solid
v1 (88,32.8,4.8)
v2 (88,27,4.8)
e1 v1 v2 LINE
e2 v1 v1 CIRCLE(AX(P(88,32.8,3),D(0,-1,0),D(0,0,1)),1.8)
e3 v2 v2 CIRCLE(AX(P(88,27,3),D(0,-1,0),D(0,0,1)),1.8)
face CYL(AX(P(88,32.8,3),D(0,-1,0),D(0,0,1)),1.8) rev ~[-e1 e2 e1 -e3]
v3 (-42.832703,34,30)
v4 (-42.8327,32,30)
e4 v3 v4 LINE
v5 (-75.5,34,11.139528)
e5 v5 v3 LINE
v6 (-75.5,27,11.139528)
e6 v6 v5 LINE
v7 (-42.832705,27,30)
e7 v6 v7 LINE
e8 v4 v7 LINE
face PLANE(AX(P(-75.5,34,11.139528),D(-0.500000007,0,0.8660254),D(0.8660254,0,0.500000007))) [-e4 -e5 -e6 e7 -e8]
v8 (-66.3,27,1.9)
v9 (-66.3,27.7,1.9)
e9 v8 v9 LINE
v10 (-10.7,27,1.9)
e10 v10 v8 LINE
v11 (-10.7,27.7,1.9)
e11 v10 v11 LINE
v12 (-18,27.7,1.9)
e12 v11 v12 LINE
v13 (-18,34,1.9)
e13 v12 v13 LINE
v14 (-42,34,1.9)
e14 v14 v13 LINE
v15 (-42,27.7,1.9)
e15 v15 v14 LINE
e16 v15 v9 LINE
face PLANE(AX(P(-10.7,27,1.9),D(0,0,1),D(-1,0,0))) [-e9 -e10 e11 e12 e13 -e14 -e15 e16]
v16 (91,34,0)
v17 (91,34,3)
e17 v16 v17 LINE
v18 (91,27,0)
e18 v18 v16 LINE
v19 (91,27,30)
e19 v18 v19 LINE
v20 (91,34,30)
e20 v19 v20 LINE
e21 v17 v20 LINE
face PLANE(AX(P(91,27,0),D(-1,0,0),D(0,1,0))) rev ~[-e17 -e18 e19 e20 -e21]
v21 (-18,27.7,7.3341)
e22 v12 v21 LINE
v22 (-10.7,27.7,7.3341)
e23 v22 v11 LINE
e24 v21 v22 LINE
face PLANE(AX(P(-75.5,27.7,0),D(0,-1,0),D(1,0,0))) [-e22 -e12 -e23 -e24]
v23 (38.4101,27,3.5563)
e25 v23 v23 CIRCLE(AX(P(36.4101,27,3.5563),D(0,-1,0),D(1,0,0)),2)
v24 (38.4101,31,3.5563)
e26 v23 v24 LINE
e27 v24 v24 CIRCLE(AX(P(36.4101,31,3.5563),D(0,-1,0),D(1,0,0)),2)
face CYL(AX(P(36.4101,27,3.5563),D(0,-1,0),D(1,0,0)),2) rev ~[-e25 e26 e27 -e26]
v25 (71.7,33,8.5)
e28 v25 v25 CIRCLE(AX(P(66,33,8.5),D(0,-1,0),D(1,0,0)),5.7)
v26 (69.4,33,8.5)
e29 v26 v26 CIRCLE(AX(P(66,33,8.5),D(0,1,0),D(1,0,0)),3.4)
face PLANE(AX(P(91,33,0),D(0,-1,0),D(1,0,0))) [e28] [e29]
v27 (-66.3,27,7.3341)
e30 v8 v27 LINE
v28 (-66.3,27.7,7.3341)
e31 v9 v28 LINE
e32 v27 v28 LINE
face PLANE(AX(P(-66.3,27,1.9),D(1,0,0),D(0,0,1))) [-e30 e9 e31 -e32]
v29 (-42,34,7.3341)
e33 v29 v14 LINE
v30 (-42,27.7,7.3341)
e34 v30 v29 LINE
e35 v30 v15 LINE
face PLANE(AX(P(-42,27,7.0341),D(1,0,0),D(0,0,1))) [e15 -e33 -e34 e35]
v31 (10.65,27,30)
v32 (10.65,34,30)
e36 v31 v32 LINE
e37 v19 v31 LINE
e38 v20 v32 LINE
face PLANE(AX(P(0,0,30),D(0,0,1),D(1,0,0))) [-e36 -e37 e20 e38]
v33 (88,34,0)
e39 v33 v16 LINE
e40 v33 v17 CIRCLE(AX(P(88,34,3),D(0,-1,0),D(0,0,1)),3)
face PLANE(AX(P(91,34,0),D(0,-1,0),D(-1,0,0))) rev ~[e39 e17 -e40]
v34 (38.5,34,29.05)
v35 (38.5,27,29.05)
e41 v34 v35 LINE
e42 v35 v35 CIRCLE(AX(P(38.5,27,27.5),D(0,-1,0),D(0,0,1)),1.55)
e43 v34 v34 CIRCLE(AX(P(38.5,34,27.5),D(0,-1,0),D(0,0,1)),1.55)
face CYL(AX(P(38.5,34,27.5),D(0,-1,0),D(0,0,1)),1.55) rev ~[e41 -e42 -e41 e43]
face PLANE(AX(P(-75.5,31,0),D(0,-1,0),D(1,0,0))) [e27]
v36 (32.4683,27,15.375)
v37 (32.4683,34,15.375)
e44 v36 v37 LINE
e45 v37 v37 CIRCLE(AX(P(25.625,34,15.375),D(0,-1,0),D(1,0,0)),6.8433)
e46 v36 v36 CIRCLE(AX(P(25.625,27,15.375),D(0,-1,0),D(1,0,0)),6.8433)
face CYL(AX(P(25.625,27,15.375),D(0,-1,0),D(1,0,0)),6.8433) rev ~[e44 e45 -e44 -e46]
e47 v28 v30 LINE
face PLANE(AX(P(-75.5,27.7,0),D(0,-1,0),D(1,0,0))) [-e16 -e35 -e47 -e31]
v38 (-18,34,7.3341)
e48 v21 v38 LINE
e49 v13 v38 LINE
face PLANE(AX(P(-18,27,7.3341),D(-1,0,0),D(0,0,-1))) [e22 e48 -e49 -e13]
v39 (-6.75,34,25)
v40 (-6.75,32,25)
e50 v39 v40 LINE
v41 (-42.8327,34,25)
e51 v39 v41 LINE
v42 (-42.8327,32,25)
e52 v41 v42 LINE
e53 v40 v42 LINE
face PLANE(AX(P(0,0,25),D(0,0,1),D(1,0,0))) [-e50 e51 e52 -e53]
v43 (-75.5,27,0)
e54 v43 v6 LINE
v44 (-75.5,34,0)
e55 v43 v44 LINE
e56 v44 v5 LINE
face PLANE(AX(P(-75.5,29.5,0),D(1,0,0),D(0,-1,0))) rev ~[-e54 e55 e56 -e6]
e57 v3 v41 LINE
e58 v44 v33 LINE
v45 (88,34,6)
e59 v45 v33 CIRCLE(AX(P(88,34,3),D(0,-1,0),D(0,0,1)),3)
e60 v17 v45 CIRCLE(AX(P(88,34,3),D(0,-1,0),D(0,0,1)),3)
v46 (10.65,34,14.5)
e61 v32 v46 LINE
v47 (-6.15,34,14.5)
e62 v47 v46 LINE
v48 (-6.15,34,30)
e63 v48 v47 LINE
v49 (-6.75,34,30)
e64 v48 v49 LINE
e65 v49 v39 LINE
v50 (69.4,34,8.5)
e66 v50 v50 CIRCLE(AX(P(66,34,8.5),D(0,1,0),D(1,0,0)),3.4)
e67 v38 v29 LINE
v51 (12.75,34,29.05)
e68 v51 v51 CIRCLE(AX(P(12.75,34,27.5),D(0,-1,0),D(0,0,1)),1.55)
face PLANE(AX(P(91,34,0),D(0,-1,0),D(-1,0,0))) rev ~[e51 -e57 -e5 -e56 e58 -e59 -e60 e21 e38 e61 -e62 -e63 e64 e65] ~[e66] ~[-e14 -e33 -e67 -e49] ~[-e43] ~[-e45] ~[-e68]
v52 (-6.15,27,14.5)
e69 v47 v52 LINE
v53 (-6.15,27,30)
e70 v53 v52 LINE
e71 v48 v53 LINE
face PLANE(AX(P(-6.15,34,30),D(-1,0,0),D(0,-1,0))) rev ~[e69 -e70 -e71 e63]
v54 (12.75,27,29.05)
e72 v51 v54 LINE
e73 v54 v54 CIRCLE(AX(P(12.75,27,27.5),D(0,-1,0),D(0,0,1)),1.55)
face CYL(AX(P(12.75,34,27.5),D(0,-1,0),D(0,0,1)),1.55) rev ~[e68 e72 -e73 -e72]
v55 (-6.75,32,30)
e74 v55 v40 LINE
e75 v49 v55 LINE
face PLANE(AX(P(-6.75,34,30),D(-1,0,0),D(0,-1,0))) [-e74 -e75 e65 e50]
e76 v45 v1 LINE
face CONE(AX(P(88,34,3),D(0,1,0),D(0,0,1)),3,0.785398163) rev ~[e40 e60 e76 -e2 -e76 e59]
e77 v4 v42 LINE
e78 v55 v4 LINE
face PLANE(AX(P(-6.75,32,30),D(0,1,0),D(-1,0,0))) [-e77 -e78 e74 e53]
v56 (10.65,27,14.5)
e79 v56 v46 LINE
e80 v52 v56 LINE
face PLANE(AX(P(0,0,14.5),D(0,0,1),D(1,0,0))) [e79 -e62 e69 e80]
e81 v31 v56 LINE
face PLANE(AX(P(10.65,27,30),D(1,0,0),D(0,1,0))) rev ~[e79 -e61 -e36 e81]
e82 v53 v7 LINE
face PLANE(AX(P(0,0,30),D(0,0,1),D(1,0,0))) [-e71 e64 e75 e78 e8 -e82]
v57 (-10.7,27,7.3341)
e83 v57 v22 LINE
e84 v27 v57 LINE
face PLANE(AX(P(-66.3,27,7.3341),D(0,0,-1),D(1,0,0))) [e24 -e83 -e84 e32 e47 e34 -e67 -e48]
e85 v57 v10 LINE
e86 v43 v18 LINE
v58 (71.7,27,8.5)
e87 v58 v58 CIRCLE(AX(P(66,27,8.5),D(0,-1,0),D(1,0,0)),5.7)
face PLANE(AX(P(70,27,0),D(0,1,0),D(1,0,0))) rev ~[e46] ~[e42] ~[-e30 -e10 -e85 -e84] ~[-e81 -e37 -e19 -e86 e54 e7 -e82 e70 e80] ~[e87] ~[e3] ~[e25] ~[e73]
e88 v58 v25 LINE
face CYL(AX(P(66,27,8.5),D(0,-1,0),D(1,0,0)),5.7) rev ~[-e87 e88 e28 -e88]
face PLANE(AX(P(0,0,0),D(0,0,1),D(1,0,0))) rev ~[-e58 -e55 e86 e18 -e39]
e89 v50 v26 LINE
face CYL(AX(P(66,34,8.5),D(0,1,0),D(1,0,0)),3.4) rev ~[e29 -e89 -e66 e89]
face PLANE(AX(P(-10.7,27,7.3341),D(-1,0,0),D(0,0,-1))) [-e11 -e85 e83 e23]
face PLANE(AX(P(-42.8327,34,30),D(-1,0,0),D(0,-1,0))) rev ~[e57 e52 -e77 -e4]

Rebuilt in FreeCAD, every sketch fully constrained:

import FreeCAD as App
import Part
import Sketcher
Q = App.Units.Quantity

doc = App.newDocument("Part")
body = doc.addObject("PartDesign::Body", "Body")

# Sketch on XY plane
sketch1 = doc.addObject("Sketcher::SketchObject", "Sketch")
body.addObject(sketch1)
sketch1.AttachmentSupport = (doc.XY_Plane, [""])
sketch1.MapMode = "FlatFace"
sketch1.addGeometry([
    Part.LineSegment(App.Vector(-75.5, 27, 0), App.Vector(91, 27, 0)),
    Part.LineSegment(App.Vector(91, 27, 0), App.Vector(91, 34, 0)),
    Part.LineSegment(App.Vector(91, 34, 0), App.Vector(-75.5, 34, 0)),
    Part.LineSegment(App.Vector(-75.5, 34, 0), App.Vector(-75.5, 27, 0)),
], False)
sketch1.addConstraint([
    Sketcher.Constraint("Coincident", 0, 2, 1, 1),
    Sketcher.Constraint("Coincident", 1, 2, 2, 1),
    Sketcher.Constraint("Coincident", 2, 2, 3, 1),
    Sketcher.Constraint("Coincident", 3, 2, 0, 1),
    Sketcher.Constraint("Horizontal", 0),
    Sketcher.Constraint("Vertical", 1),
    Sketcher.Constraint("Horizontal", 2),
    Sketcher.Constraint("Vertical", 3),
    Sketcher.Constraint("DistanceY", 1, 1, 1, 2, Q("7 mm")),
    Sketcher.Constraint("DistanceX", 0, 1, 0, 2, Q("166.5 mm")),
    Sketcher.Constraint("DistanceX", -1, 1, 0, 2, Q("91 mm")),
    Sketcher.Constraint("DistanceY", -1, 1, 0, 2, Q("27 mm")),
])
pad1 = doc.addObject("PartDesign::Pad", "Pad")
body.addObject(pad1)
pad1.Profile = sketch1
pad1.Length = 30

# Sketch on XZ plane
sketch2 = doc.addObject("Sketcher::SketchObject", "Sketch001")
body.addObject(sketch2)
sketch2.AttachmentSupport = (doc.XZ_Plane, [""])
sketch2.MapMode = "FlatFace"
sketch2.AttachmentOffset = App.Placement(App.Vector(0, 0, -34), App.Rotation())
sketch2.addGeometry([
    Part.LineSegment(App.Vector(-42.832705, 30, 0), App.Vector(-75.5, 11.139528, 0)),
    Part.LineSegment(App.Vector(-75.5, 11.139528, 0), App.Vector(-75.5, 30, 0)),
    Part.LineSegment(App.Vector(-75.5, 30, 0), App.Vector(-42.832705, 30, 0)),
], False)
sketch2.addConstraint([
    Sketcher.Constraint("Coincident", 0, 2, 1, 1),
    Sketcher.Constraint("Coincident", 1, 2, 2, 1),
    Sketcher.Constraint("Coincident", 2, 2, 0, 1),
    Sketcher.Constraint("Vertical", 1),
    Sketcher.Constraint("Horizontal", 2),
    Sketcher.Constraint("DistanceY", -1, 1, 1, 2, Q("30 mm")),
    Sketcher.Constraint("Angle", 0, Q("-150 deg")),
    Sketcher.Constraint("DistanceX", 0, 2, -1, 1, Q("75.5 mm")),
    Sketcher.Constraint("Distance", 0, Q("37.721 mm")),
])
pocket1 = doc.addObject("PartDesign::Pocket", "Pocket")
body.addObject(pocket1)
pocket1.Profile = sketch2
pocket1.Length = 30
pocket1.Reversed = True

# Sketch on XZ plane
sketch3 = doc.addObject("Sketcher::SketchObject", "Sketch002")
body.addObject(sketch3)
sketch3.AttachmentSupport = (doc.XZ_Plane, [""])
sketch3.MapMode = "FlatFace"
sketch3.AttachmentOffset = App.Placement(App.Vector(0, 0, -27), App.Rotation())
sketch3.addGeometry([
    Part.LineSegment(App.Vector(-10.7, 7.3341, 0), App.Vector(-66.3, 7.3341, 0)),
    Part.LineSegment(App.Vector(-66.3, 7.3341, 0), App.Vector(-66.3, 1.9, 0)),
    Part.LineSegment(App.Vector(-66.3, 1.9, 0), App.Vector(-10.7, 1.9, 0)),
    Part.LineSegment(App.Vector(-10.7, 1.9, 0), App.Vector(-10.7, 7.3341, 0)),
], False)
sketch3.addConstraint([
    Sketcher.Constraint("Coincident", 0, 2, 1, 1),
    Sketcher.Constraint("Coincident", 1, 2, 2, 1),
    Sketcher.Constraint("Coincident", 2, 2, 3, 1),
    Sketcher.Constraint("Coincident", 3, 2, 0, 1),
    Sketcher.Constraint("Horizontal", 0),
    Sketcher.Constraint("Vertical", 1),
    Sketcher.Constraint("Horizontal", 2),
    Sketcher.Constraint("Vertical", 3),
    Sketcher.Constraint("DistanceX", 0, 2, 0, 1, Q("55.6 mm")),
    Sketcher.Constraint("DistanceX", 0, 2, -1, 1, Q("66.3 mm")),
    Sketcher.Constraint("DistanceY", -1, 1, 1, 2, Q("1.9 mm")),
    Sketcher.Constraint("DistanceY", 1, 2, 1, 1, Q("5.434 mm")),
])
pocket2 = doc.addObject("PartDesign::Pocket", "Pocket001")
body.addObject(pocket2)
pocket2.Profile = sketch3
pocket2.Length = 0.7

# Sketch on XZ plane
sketch4 = doc.addObject("Sketcher::SketchObject", "Sketch003")
body.addObject(sketch4)
sketch4.AttachmentSupport = (doc.XZ_Plane, [""])
sketch4.MapMode = "FlatFace"
sketch4.AttachmentOffset = App.Placement(App.Vector(0, 0, -27), App.Rotation())
sketch4.addGeometry([
    Part.LineSegment(App.Vector(-42, 7.3341, 0), App.Vector(-42, 1.9, 0)),
    Part.LineSegment(App.Vector(-42, 1.9, 0), App.Vector(-18, 1.9, 0)),
    Part.LineSegment(App.Vector(-18, 1.9, 0), App.Vector(-18, 7.3341, 0)),
    Part.LineSegment(App.Vector(-18, 7.3341, 0), App.Vector(-42, 7.3341, 0)),
], False)
sketch4.addConstraint([
    Sketcher.Constraint("Coincident", 0, 2, 1, 1),
    Sketcher.Constraint("Coincident", 1, 2, 2, 1),
    Sketcher.Constraint("Coincident", 2, 2, 3, 1),
    Sketcher.Constraint("Coincident", 3, 2, 0, 1),
    Sketcher.Constraint("Vertical", 0),
    Sketcher.Constraint("Horizontal", 1),
    Sketcher.Constraint("Vertical", 2),
    Sketcher.Constraint("Horizontal", 3),
    Sketcher.Constraint("DistanceX", 1, 1, 1, 2, Q("24 mm")),
    Sketcher.Constraint("DistanceX", 0, 2, -1, 1, Q("42 mm")),
    Sketcher.Constraint("DistanceY", -1, 1, 0, 2, Q("1.9 mm")),
    Sketcher.Constraint("DistanceY", 0, 2, 0, 1, Q("5.434 mm")),
])
pocket3 = doc.addObject("PartDesign::Pocket", "Pocket002")
body.addObject(pocket3)
pocket3.Profile = sketch4
pocket3.Length = 7

# Sketch on XY plane
sketch5 = doc.addObject("Sketcher::SketchObject", "Sketch004")
body.addObject(sketch5)
sketch5.AttachmentSupport = (doc.XY_Plane, [""])
sketch5.MapMode = "FlatFace"
sketch5.AttachmentOffset = App.Placement(App.Vector(0, 0, 30), App.Rotation())
sketch5.addGeometry([
    Part.LineSegment(App.Vector(10.65, 27, 0), App.Vector(10.65, 34, 0)),
    Part.LineSegment(App.Vector(10.65, 34, 0), App.Vector(-6.15, 34, 0)),
    Part.LineSegment(App.Vector(-6.15, 34, 0), App.Vector(-6.15, 27, 0)),
    Part.LineSegment(App.Vector(-6.15, 27, 0), App.Vector(10.65, 27, 0)),
], False)
sketch5.addConstraint([
    Sketcher.Constraint("Coincident", 0, 2, 1, 1),
    Sketcher.Constraint("Coincident", 1, 2, 2, 1),
    Sketcher.Constraint("Coincident", 2, 2, 3, 1),
    Sketcher.Constraint("Coincident", 3, 2, 0, 1),
    Sketcher.Constraint("Vertical", 0),
    Sketcher.Constraint("Horizontal", 1),
    Sketcher.Constraint("Vertical", 2),
    Sketcher.Constraint("Horizontal", 3),
    Sketcher.Constraint("DistanceY", 0, 1, 0, 2, Q("7 mm")),
    Sketcher.Constraint("DistanceX", 1, 2, 1, 1, Q("16.8 mm")),
    Sketcher.Constraint("DistanceY", -1, 1, 0, 2, Q("34 mm")),
    Sketcher.Constraint("DistanceX", -1, 1, 0, 2, Q("10.65 mm")),
])
pocket4 = doc.addObject("PartDesign::Pocket", "Pocket003")
body.addObject(pocket4)
pocket4.Profile = sketch5
pocket4.Length = 15.5

# Sketch on XZ plane
sketch6 = doc.addObject("Sketcher::SketchObject", "Sketch005")
body.addObject(sketch6)
sketch6.AttachmentSupport = (doc.XZ_Plane, [""])
sketch6.MapMode = "FlatFace"
sketch6.AttachmentOffset = App.Placement(App.Vector(0, 0, -27), App.Rotation())
sketch6.addGeometry(Part.Circle(App.Vector(25.625, 15.375, 0), App.Vector(0, 0, 1), 6.8433), False)
sketch6.addConstraint([
    Sketcher.Constraint("Diameter", 0, Q("13.6866 mm")),
    Sketcher.Constraint("DistanceX", -1, 1, 0, 3, Q("25.625 mm")),
    Sketcher.Constraint("DistanceY", -1, 1, 0, 3, Q("15.375 mm")),
])
pocket5 = doc.addObject("PartDesign::Pocket", "Pocket004")
body.addObject(pocket5)
pocket5.Profile = sketch6
pocket5.Type = "UpToFirst"

# Sketch on XZ plane
sketch7 = doc.addObject("Sketcher::SketchObject", "Sketch006")
body.addObject(sketch7)
sketch7.AttachmentSupport = (doc.XZ_Plane, [""])
sketch7.MapMode = "FlatFace"
sketch7.AttachmentOffset = App.Placement(App.Vector(0, 0, -27), App.Rotation())
sketch7.addGeometry(Part.Circle(App.Vector(66, 8.5, 0), App.Vector(0, 0, 1), 5.7), False)
sketch7.addConstraint([
    Sketcher.Constraint("Diameter", 0, Q("11.4 mm")),
    Sketcher.Constraint("DistanceX", -1, 1, 0, 3, Q("66 mm")),
    Sketcher.Constraint("DistanceY", -1, 1, 0, 3, Q("8.5 mm")),
])
pocket6 = doc.addObject("PartDesign::Pocket", "Pocket005")
body.addObject(pocket6)
pocket6.Profile = sketch7
pocket6.Length = 6

# Sketch on XZ plane
sketch8 = doc.addObject("Sketcher::SketchObject", "Sketch007")
body.addObject(sketch8)
sketch8.AttachmentSupport = (doc.XZ_Plane, [""])
sketch8.MapMode = "FlatFace"
sketch8.AttachmentOffset = App.Placement(App.Vector(0, 0, -34), App.Rotation())
sketch8.addGeometry(Part.Circle(App.Vector(66, 8.5, 0), App.Vector(0, 0, 1), 3.4), False)
sketch8.addConstraint([
    Sketcher.Constraint("Diameter", 0, Q("6.8 mm")),
    Sketcher.Constraint("DistanceX", -1, 1, 0, 3, Q("66 mm")),
    Sketcher.Constraint("DistanceY", -1, 1, 0, 3, Q("8.5 mm")),
])
pocket7 = doc.addObject("PartDesign::Pocket", "Pocket006")
body.addObject(pocket7)
pocket7.Profile = sketch8
pocket7.Length = 6
pocket7.Reversed = True

# Sketch on XZ plane
sketch9 = doc.addObject("Sketcher::SketchObject", "Sketch008")
body.addObject(sketch9)
sketch9.AttachmentSupport = (doc.XZ_Plane, [""])
sketch9.MapMode = "FlatFace"
sketch9.AttachmentOffset = App.Placement(App.Vector(0, 0, -27), App.Rotation())
sketch9.addGeometry(Part.Circle(App.Vector(36.4101, 3.5563, 0), App.Vector(0, 0, 1), 2), False)
sketch9.addConstraint([
    Sketcher.Constraint("Diameter", 0, Q("4 mm")),
    Sketcher.Constraint("DistanceX", -1, 1, 0, 3, Q("36.41 mm")),
    Sketcher.Constraint("DistanceY", -1, 1, 0, 3, Q("3.5563 mm")),
])
pocket8 = doc.addObject("PartDesign::Pocket", "Pocket007")
body.addObject(pocket8)
pocket8.Profile = sketch9
pocket8.Length = 4

# Sketch on XZ plane
sketch10 = doc.addObject("Sketcher::SketchObject", "Sketch009")
body.addObject(sketch10)
sketch10.AttachmentSupport = (doc.XZ_Plane, [""])
sketch10.MapMode = "FlatFace"
sketch10.AttachmentOffset = App.Placement(App.Vector(0, 0, -34), App.Rotation())
sketch10.addGeometry([
    Part.Circle(App.Vector(38.5, 27.5, 0), App.Vector(0, 0, 1), 1.55),
    Part.Circle(App.Vector(12.75, 27.5, 0), App.Vector(0, 0, 1), 1.55),
], False)
sketch10.addConstraint([
    Sketcher.Constraint("Equal", 0, 1),
    Sketcher.Constraint("Horizontal", 0, 3, 1, 3),
    Sketcher.Constraint("Diameter", 0, Q("3.1 mm")),
    Sketcher.Constraint("DistanceX", -1, 1, 0, 3, Q("38.5 mm")),
    Sketcher.Constraint("DistanceY", -1, 1, 0, 3, Q("27.5 mm")),
    Sketcher.Constraint("DistanceX", -1, 1, 1, 3, Q("12.75 mm")),
])
doc.recompute()
hole = doc.addObject("PartDesign::Hole", "Hole")
body.addObject(hole)
hole.Profile = sketch10
hole.ThreadType = "None"
hole.Diameter = 3.1
hole.DepthType = "ThroughAll"
hole.Reversed = True

# Sketch on XZ plane
sketch11 = doc.addObject("Sketcher::SketchObject", "Sketch010")
body.addObject(sketch11)
sketch11.AttachmentSupport = (doc.XZ_Plane, [""])
sketch11.MapMode = "FlatFace"
sketch11.AttachmentOffset = App.Placement(App.Vector(0, 0, -34), App.Rotation())
sketch11.addGeometry(Part.Circle(App.Vector(88, 3, 0), App.Vector(0, 0, 1), 1.8), False)
sketch11.addConstraint([
    Sketcher.Constraint("Diameter", 0, Q("3.6 mm")),
    Sketcher.Constraint("DistanceX", -1, 1, 0, 3, Q("88 mm")),
    Sketcher.Constraint("DistanceY", -1, 1, 0, 3, Q("3 mm")),
])
doc.recompute()
hole2 = doc.addObject("PartDesign::Hole", "Hole001")
body.addObject(hole2)
hole2.Profile = sketch11
hole2.ThreadType = "None"
hole2.Diameter = 3.6
hole2.DepthType = "ThroughAll"
hole2.HoleCutType = "Countersink"
hole2.HoleCutDiameter = 6
hole2.HoleCutCountersinkAngle = 90
hole2.Reversed = True

# Sketch on XY plane
sketch12 = doc.addObject("Sketcher::SketchObject", "Sketch011")
body.addObject(sketch12)
sketch12.AttachmentSupport = (doc.XY_Plane, [""])
sketch12.MapMode = "FlatFace"
sketch12.AttachmentOffset = App.Placement(App.Vector(0, 0, 30), App.Rotation())
sketch12.addGeometry([
    Part.LineSegment(App.Vector(-42.8327, 32, 0), App.Vector(-6.75, 32, 0)),
    Part.LineSegment(App.Vector(-6.75, 32, 0), App.Vector(-6.75, 34, 0)),
    Part.LineSegment(App.Vector(-6.75, 34, 0), App.Vector(-42.8327, 34, 0)),
    Part.LineSegment(App.Vector(-42.8327, 34, 0), App.Vector(-42.8327, 32, 0)),
], False)
sketch12.addConstraint([
    Sketcher.Constraint("Coincident", 0, 2, 1, 1),
    Sketcher.Constraint("Coincident", 1, 2, 2, 1),
    Sketcher.Constraint("Coincident", 2, 2, 3, 1),
    Sketcher.Constraint("Coincident", 3, 2, 0, 1),
    Sketcher.Constraint("Horizontal", 0),
    Sketcher.Constraint("Vertical", 1),
    Sketcher.Constraint("Horizontal", 2),
    Sketcher.Constraint("Vertical", 3),
    Sketcher.Constraint("DistanceY", 1, 1, 1, 2, Q("2 mm")),
    Sketcher.Constraint("DistanceY", -1, 1, 0, 2, Q("32 mm")),
    Sketcher.Constraint("DistanceX", 0, 2, -1, 1, Q("6.75 mm")),
    Sketcher.Constraint("DistanceX", 0, 1, 0, 2, Q("36.0827 mm")),
])
pocket9 = doc.addObject("PartDesign::Pocket", "Pocket008")
body.addObject(pocket9)
pocket9.Profile = sketch12
pocket9.Length = 5

doc.recompute()
